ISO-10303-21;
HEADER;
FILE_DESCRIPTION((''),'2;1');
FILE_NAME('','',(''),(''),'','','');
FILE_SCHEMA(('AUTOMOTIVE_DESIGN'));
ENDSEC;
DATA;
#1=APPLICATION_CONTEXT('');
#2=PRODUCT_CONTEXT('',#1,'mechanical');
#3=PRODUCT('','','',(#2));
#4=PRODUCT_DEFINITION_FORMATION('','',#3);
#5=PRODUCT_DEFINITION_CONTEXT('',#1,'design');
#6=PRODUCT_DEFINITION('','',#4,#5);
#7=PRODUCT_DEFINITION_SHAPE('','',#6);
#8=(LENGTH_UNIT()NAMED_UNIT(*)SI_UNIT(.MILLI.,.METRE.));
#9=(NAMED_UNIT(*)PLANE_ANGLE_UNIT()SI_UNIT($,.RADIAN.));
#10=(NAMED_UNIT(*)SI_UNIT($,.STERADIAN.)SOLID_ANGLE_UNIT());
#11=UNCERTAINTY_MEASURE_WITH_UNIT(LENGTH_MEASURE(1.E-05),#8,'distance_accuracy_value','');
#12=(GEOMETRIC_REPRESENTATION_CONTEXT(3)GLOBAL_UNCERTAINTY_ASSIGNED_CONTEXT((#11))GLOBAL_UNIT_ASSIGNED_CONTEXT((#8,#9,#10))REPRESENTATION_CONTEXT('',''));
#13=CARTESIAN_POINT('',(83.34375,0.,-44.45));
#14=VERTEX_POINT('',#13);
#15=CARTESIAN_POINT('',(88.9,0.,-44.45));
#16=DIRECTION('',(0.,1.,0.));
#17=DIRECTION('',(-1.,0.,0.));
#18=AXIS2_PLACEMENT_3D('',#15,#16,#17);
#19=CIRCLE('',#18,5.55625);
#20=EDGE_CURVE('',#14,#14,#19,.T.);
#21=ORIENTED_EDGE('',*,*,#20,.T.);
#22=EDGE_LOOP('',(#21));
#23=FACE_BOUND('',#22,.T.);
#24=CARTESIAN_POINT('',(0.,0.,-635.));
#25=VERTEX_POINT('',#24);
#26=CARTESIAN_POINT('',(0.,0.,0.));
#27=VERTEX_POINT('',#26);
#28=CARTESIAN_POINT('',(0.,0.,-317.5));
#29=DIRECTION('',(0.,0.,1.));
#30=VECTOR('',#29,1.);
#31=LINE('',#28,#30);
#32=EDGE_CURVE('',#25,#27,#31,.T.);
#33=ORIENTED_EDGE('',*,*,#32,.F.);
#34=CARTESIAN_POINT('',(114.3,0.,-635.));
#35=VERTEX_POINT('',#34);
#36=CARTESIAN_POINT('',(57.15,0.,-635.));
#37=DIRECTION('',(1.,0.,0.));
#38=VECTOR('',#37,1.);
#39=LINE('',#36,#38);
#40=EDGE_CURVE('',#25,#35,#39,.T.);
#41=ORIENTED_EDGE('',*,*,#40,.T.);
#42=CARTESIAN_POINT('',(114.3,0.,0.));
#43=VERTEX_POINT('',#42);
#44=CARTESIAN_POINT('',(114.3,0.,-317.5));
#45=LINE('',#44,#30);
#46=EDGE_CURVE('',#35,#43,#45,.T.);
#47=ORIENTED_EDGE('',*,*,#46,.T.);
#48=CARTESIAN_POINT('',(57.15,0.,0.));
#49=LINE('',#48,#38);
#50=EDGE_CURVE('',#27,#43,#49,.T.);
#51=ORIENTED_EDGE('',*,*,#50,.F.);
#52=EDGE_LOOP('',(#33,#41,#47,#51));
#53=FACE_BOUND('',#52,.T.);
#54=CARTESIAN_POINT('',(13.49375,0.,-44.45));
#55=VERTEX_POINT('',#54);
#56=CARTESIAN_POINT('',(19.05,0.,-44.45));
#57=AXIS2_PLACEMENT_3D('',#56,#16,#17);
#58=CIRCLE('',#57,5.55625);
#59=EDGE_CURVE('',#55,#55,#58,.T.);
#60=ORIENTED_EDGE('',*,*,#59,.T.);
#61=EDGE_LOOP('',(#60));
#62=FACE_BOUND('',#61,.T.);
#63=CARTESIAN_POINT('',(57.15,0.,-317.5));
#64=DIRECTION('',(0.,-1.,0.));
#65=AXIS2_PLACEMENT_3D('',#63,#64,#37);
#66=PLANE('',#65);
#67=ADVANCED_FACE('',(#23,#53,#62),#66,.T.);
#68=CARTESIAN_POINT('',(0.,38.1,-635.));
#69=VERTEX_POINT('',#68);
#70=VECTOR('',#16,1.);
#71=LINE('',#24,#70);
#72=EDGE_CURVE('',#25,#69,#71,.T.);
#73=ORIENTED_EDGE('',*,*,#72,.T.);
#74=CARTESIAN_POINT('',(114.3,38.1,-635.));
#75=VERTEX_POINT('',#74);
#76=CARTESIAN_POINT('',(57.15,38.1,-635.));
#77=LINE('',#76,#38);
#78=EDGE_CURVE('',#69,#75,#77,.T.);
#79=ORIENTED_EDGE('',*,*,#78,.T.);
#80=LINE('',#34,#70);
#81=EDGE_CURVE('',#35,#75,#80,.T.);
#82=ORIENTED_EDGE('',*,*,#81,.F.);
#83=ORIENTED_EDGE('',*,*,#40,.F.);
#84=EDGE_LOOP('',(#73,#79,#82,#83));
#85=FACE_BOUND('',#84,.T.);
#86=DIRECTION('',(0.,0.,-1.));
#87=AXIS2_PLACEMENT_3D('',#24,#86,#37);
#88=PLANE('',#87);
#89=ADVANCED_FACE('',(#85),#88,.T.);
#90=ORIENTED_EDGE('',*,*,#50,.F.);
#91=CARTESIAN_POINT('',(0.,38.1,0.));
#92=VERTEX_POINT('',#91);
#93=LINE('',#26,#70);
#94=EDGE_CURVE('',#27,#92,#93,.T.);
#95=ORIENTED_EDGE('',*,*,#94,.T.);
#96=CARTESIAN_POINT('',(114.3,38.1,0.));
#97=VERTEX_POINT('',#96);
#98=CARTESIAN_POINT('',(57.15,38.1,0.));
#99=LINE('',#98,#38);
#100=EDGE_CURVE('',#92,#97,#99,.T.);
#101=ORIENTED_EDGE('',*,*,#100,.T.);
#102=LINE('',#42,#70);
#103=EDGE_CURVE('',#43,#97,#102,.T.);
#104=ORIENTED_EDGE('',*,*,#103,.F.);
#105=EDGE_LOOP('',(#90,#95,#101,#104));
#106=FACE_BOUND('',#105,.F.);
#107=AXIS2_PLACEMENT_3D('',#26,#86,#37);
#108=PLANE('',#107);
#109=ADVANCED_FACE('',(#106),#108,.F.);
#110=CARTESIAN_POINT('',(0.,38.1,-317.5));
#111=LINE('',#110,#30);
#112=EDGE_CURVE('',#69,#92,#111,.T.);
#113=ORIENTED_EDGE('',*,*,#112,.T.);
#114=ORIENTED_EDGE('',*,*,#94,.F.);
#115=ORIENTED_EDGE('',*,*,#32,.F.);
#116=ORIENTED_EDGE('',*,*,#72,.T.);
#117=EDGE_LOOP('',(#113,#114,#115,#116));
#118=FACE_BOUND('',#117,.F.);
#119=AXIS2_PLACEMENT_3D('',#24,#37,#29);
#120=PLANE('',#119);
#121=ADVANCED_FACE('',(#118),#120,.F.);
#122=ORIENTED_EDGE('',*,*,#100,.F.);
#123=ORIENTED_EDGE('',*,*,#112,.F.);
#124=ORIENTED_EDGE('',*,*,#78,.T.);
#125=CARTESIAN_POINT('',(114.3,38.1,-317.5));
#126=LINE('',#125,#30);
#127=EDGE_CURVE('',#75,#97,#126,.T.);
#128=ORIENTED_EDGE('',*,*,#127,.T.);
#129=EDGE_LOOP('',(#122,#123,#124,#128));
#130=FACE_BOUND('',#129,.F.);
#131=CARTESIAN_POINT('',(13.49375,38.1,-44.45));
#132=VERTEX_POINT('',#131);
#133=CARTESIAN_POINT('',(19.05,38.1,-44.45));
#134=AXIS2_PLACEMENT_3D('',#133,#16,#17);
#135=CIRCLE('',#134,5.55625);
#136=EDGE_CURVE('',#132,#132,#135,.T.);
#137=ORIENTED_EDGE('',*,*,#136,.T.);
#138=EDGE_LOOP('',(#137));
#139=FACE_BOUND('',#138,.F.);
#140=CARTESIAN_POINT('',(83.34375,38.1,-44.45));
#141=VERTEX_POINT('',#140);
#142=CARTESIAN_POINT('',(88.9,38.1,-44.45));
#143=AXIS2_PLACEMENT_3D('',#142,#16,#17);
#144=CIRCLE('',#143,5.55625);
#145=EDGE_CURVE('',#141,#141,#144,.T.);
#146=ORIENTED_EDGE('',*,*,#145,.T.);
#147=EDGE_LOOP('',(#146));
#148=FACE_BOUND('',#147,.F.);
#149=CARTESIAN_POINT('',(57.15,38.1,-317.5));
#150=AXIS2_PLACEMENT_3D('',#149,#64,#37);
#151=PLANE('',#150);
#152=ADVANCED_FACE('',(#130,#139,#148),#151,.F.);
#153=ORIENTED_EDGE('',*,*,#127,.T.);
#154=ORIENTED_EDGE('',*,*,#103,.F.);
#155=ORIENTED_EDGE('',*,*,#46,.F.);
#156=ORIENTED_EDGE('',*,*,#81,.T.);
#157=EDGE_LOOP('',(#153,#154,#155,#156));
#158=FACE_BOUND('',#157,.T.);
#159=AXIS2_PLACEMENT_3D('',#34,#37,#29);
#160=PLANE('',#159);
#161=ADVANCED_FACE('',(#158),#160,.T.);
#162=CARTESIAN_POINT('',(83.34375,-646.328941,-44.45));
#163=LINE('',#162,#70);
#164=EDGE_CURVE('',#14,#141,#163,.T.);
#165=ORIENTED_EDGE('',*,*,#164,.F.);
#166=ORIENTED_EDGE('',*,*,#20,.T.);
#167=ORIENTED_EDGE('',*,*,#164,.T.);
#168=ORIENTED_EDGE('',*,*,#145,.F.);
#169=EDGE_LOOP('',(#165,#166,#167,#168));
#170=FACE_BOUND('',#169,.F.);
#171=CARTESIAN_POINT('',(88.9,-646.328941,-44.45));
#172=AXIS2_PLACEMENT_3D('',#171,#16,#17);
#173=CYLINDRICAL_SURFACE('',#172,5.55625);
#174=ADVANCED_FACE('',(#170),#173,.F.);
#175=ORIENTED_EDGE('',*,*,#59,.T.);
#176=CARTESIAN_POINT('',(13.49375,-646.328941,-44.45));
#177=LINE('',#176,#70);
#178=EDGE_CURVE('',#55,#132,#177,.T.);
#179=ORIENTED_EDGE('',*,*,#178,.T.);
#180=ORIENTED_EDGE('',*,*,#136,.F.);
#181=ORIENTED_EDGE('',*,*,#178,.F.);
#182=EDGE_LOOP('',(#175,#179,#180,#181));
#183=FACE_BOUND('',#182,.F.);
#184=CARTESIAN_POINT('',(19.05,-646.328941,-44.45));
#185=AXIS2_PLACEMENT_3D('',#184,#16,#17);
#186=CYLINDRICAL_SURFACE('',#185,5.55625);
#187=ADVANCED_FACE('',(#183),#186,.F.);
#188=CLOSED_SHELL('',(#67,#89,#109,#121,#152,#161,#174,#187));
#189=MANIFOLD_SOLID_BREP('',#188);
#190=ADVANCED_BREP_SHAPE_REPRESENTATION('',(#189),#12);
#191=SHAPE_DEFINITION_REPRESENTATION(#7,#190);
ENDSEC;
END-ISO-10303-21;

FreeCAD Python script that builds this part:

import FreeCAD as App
import Part
import Sketcher
from FreeCAD import Vector
Q = App.Units.Quantity


def add_polygon(sketch, points):
    """Adds a closed chain of lines whose ends are joined by coincident constraints."""
    first, n = sketch.GeometryCount, len(points)
    for a, b in zip(points, points[1:] + points[:1]):
        sketch.addGeometry(Part.LineSegment(App.Vector(*a, 0), App.Vector(*b, 0)), False)
    for i in range(n):
        sketch.addConstraint(Sketcher.Constraint("Coincident", first + i, 2, first + (i + 1) % n, 1))

doc = App.newDocument("Part")
params = doc.addObject("Spreadsheet::Sheet", "Params")
for row, (alias, value) in enumerate([
    ("sketch1_height", "25 in"),
    ("sketch1_width", "4.5 in"),
    ("pad1_length", "1.5 in"),
    ("sketch2_diameter", "0.4375 in"),
    ("hole_diameter", "0.4375 in"),
], start=1):
    params.set(f"A{row}", alias)
    params.set(f"B{row}", "=" + value)
    params.setAlias(f"B{row}", alias)

body = doc.addObject("PartDesign::Body", "Body")

# Sketch on XZ plane
sketch1 = body.newObject("Sketcher::SketchObject", "Sketch")
sketch1.AttachmentSupport = (doc.getObject("XZ_Plane"), [""])
sketch1.MapMode = "FlatFace"
add_polygon(sketch1, [(0, 0), (0, -635), (114, -635), (114, 0)])  # lines 0-3
sketch1.addConstraint([
    Sketcher.Constraint("Vertical", 0),
    Sketcher.Constraint("Horizontal", 1),
    Sketcher.Constraint("Vertical", 2),
    Sketcher.Constraint("Horizontal", 3),
    Sketcher.Constraint("Coincident", 3, 2, -1, 1),
    Sketcher.Constraint("DistanceY", 0, 2, 0, 1, Q("25 in")),
    Sketcher.Constraint("DistanceX", 1, 1, 1, 2, Q("4.5 in")),
])
sketch1.setExpression("Constraints[9]", "Params.sketch1_height")
sketch1.setExpression("Constraints[10]", "Params.sketch1_width")
pad1 = body.newObject("PartDesign::Pad", "Pad")
pad1.Profile = sketch1
pad1.setExpression("Length", "Params.pad1_length")
pad1.Reversed = True

# Sketch on XZ plane
sketch2 = body.newObject("Sketcher::SketchObject", "Sketch001")
sketch2.AttachmentSupport = (doc.getObject("XZ_Plane"), [""])
sketch2.MapMode = "FlatFace"
sketch2.addGeometry([
    Part.Circle(Vector(19, -44, 0), Vector(0, 0, 1), 6),
    Part.Circle(Vector(89, -44, 0), Vector(0, 0, 1), 6),
], False)
sketch2.addConstraint([
    Sketcher.Constraint("Equal", 0, 1),
    Sketcher.Constraint("Horizontal", 0, 3, 1, 3),
    Sketcher.Constraint("Diameter", 0, Q("0.4375 in")),
    Sketcher.Constraint("DistanceX", -1, 1, 1, 3, Q("3.5 in")),
    Sketcher.Constraint("DistanceX", -1, 1, 0, 3, Q("0.75 in")),
    Sketcher.Constraint("DistanceY", 0, 3, -1, 1, Q("1.75 in")),
])
sketch2.setExpression("Constraints[2]", "Params.sketch2_diameter")
doc.recompute()
hole = body.newObject("PartDesign::Hole", "Hole")
hole.Profile = sketch2
hole.ThreadType = "None"
hole.setExpression("Diameter", "Params.hole_diameter")
hole.DepthType = "ThroughAll"

doc.recompute()
